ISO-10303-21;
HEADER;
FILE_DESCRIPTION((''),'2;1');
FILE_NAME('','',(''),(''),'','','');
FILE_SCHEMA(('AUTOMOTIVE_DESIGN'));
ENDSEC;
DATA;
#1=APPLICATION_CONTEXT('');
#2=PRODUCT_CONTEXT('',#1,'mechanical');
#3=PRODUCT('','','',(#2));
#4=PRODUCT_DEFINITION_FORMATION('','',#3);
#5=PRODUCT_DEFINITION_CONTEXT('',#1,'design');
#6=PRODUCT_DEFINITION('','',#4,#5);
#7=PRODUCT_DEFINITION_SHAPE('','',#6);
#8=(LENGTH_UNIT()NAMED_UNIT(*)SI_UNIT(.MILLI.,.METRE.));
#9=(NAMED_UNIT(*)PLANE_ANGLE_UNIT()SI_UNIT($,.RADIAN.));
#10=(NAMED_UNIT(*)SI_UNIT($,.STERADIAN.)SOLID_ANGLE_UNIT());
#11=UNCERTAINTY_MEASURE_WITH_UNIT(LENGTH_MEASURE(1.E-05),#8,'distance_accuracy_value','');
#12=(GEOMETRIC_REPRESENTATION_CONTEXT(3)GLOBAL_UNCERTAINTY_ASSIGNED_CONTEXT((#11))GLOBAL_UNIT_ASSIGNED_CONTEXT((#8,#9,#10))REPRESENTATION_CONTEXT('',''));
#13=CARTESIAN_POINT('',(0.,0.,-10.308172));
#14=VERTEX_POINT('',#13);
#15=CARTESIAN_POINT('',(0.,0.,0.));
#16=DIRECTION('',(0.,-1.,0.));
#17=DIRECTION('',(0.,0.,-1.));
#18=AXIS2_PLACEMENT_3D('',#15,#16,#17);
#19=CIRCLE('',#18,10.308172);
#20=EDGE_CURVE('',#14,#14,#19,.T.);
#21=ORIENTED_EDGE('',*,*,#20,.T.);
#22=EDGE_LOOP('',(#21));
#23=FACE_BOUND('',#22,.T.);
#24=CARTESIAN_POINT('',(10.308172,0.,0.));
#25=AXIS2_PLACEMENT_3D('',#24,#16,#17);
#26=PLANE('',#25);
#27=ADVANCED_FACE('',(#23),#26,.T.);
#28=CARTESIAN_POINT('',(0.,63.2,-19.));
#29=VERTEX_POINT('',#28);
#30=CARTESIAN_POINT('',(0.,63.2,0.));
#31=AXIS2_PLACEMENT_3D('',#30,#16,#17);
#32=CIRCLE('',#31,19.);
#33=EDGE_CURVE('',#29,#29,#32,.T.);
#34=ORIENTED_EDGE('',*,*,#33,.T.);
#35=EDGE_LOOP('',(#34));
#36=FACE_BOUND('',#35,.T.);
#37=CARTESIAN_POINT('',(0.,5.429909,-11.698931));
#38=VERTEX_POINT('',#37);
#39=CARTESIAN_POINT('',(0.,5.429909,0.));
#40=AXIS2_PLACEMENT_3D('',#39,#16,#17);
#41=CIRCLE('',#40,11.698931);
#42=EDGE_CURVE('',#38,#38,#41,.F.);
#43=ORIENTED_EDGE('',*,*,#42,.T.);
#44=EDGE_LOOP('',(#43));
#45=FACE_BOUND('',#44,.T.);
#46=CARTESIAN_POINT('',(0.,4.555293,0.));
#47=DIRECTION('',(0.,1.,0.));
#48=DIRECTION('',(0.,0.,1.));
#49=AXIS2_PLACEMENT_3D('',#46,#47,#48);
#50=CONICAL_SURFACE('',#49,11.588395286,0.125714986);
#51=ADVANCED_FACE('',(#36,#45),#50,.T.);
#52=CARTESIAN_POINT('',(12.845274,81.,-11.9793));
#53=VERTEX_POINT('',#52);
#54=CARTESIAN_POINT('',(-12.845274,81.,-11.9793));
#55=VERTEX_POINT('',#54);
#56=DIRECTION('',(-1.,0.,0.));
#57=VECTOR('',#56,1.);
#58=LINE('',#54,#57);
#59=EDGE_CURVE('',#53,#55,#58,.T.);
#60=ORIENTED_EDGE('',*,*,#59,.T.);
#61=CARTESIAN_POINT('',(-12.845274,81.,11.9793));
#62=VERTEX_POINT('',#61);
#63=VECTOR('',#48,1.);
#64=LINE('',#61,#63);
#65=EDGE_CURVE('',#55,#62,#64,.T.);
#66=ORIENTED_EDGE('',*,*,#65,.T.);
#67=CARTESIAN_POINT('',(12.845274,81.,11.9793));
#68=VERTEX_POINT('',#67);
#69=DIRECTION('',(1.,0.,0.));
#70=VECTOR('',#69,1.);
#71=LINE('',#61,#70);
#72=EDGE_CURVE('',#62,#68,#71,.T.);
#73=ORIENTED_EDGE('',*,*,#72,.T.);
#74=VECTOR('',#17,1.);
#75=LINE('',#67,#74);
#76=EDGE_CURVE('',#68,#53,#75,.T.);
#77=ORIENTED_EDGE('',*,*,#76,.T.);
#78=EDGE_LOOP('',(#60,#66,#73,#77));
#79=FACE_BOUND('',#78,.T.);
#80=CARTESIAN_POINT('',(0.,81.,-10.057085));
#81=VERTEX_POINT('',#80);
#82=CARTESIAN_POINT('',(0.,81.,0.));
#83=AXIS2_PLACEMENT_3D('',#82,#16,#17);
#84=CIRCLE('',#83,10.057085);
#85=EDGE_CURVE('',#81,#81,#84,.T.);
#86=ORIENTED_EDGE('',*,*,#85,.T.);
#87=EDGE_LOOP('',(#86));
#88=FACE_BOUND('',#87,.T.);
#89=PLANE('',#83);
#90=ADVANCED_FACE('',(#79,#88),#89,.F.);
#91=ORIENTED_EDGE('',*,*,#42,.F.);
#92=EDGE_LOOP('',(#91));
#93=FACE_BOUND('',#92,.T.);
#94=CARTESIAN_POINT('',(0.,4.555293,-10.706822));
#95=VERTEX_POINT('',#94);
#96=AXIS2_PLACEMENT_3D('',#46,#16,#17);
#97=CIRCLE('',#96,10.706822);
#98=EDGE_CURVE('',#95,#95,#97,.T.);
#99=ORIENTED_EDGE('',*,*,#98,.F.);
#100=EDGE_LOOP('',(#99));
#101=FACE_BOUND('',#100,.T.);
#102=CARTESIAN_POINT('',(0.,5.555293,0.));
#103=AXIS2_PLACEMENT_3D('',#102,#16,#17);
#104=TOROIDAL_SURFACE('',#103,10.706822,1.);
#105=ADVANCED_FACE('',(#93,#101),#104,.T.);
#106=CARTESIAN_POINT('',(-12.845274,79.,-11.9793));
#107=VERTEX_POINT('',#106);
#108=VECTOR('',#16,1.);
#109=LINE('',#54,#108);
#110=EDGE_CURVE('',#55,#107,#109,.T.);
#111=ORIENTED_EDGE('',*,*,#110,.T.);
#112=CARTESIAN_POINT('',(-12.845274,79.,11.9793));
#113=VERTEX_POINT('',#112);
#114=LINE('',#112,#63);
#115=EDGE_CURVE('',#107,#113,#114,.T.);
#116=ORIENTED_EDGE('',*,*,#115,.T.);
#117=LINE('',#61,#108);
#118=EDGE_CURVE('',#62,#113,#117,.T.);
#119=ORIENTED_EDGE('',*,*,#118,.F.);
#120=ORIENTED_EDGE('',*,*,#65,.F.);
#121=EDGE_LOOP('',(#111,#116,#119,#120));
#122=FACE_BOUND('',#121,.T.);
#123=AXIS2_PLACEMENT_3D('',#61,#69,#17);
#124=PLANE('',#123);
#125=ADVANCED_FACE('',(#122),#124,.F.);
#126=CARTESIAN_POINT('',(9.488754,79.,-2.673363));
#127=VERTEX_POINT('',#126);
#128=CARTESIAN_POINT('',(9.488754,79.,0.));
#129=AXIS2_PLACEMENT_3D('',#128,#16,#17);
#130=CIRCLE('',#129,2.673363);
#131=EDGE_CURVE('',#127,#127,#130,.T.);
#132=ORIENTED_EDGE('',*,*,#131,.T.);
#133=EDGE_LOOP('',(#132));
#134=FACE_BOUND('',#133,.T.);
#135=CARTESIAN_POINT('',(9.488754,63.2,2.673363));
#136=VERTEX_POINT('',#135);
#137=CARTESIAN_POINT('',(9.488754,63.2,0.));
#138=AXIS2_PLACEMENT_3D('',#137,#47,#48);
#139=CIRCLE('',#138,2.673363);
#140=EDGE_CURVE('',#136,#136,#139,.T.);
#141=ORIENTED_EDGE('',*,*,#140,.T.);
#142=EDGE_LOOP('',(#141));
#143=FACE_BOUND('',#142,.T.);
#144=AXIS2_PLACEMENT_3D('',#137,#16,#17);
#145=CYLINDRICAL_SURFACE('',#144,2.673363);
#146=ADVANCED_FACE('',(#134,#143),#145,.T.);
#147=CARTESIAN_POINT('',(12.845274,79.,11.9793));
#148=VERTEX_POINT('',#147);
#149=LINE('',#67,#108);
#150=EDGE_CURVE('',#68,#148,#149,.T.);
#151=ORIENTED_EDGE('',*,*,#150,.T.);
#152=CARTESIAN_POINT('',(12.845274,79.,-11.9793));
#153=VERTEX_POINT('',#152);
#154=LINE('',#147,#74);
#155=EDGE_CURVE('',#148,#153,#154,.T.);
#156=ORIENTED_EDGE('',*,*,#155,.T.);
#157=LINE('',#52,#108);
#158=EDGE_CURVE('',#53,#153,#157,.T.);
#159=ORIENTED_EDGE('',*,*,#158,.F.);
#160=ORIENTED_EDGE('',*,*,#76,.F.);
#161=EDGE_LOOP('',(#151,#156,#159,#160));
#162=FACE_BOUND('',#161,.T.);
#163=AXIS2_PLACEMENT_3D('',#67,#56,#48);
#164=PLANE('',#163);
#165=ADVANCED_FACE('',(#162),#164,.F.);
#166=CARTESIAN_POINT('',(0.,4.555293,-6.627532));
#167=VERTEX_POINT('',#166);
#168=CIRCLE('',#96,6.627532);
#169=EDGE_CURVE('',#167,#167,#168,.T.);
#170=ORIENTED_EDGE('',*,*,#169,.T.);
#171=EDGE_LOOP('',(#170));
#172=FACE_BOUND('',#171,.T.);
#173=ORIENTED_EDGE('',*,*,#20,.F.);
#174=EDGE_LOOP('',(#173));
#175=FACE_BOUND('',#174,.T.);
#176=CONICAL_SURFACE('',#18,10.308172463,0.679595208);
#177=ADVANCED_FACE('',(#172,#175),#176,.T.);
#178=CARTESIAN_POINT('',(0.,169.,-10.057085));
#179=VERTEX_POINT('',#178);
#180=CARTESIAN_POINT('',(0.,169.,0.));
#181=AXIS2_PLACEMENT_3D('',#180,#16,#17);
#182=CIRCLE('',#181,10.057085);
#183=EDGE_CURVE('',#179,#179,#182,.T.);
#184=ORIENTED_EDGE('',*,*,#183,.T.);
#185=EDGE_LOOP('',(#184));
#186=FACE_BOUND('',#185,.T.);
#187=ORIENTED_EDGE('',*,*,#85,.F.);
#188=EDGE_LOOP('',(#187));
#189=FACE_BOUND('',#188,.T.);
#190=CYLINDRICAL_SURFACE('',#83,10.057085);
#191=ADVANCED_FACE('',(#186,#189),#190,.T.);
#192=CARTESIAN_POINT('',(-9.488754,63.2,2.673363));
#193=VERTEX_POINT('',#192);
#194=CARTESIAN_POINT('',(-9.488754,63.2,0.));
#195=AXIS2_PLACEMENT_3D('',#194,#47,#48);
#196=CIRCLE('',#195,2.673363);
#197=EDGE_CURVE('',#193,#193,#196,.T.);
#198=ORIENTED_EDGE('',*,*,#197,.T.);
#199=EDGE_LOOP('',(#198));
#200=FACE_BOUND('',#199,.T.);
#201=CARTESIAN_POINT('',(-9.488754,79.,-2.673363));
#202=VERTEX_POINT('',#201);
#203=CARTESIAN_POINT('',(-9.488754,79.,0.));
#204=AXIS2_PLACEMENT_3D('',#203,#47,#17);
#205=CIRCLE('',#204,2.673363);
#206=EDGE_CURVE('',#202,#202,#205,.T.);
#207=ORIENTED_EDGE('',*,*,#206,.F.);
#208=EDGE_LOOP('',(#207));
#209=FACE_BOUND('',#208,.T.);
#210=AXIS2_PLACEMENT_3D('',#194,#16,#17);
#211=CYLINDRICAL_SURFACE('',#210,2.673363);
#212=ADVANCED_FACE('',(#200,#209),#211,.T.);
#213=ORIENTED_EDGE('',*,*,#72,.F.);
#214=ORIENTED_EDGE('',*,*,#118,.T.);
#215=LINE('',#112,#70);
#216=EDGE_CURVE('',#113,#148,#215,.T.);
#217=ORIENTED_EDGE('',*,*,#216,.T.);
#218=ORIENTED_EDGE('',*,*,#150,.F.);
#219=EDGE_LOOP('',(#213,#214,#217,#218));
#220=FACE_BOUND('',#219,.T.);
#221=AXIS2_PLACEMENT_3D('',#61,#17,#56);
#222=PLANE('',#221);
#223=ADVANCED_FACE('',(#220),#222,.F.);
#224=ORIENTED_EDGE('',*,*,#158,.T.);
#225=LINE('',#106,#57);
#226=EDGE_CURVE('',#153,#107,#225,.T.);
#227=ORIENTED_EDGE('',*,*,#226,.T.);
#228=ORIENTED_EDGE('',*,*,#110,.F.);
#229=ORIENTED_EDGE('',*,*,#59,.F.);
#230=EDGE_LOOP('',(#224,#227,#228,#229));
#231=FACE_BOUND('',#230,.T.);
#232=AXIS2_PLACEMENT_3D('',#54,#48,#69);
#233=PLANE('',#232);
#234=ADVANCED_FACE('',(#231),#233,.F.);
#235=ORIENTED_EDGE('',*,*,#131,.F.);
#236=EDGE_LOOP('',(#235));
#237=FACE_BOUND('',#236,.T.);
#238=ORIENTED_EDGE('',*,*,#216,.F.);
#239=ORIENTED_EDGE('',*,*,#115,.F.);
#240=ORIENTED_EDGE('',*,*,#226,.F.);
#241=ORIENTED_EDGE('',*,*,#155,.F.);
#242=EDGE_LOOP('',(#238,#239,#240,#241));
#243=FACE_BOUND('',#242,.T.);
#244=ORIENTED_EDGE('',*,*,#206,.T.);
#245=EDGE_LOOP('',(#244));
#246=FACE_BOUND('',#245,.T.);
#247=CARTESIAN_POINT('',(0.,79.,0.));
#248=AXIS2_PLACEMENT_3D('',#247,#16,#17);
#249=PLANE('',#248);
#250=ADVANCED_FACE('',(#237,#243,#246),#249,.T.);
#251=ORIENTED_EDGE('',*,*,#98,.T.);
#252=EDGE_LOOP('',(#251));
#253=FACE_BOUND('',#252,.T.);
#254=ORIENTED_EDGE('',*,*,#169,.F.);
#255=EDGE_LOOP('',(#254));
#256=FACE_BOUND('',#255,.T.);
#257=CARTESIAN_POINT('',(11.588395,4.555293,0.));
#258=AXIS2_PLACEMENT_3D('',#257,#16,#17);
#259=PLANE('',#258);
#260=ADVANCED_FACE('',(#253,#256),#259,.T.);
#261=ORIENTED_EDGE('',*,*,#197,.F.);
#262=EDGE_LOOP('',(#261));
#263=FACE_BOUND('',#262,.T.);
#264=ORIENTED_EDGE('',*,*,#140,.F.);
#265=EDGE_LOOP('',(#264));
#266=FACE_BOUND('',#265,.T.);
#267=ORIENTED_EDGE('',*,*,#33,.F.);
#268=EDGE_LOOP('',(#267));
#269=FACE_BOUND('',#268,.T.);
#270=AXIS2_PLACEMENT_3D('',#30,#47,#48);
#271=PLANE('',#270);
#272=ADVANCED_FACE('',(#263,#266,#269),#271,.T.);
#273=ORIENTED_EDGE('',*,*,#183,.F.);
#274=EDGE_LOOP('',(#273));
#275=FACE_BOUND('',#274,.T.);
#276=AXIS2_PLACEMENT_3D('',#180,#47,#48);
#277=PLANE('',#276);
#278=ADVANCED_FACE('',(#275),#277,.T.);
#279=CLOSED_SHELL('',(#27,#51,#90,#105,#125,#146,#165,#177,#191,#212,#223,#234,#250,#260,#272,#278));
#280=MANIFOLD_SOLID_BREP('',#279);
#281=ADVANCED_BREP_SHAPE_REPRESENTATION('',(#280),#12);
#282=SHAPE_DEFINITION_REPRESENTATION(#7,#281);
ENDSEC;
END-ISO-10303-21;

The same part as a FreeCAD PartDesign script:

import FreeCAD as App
import Part
import Sketcher
from FreeCAD import Vector
Q = App.Units.Quantity


def edges_at(feature, points):
    """Names of the edges that pass closest to the given points."""
    edges = feature.Shape.Edges
    near = lambda p: min(range(len(edges)), key=lambda i: edges[i].distToShape(Part.Vertex(*p))[0])
    return sorted({f"Edge{near(p) + 1}" for p in points})

doc = App.newDocument("Part")
body = doc.addObject("PartDesign::Body", "Body")

# Sketch on XY plane
sketch1 = body.newObject("Sketcher::SketchObject", "Sketch")
sketch1.AttachmentSupport = (doc.getObject("XY_Plane"), [""])
sketch1.MapMode = "FlatFace"
sketch1.addGeometry(Part.LineSegment(Vector(0, 63.2, 0), Vector(0, 0, 0)), False)
sketch1.addGeometry(Part.LineSegment(Vector(0, 0, 0), Vector(10.308172, 0, 0)), False)
sketch1.addGeometry(Part.LineSegment(Vector(10.308172, 0, 0), Vector(6.627532, 4.555293, 0)), False)
sketch1.addGeometry(Part.LineSegment(Vector(6.627532, 4.555293, 0), Vector(11.588395, 4.555293, 0)), False)
sketch1.addGeometry(Part.LineSegment(Vector(11.588395, 4.555293, 0), Vector(19, 63.2, 0)), False)
sketch1.addGeometry(Part.LineSegment(Vector(19, 63.2, 0), Vector(0, 63.2, 0)), False)
sketch1.addConstraint(Sketcher.Constraint("Coincident", 0, 2, 1, 1))
sketch1.addConstraint(Sketcher.Constraint("Coincident", 1, 2, 2, 1))
sketch1.addConstraint(Sketcher.Constraint("Coincident", 2, 2, 3, 1))
sketch1.addConstraint(Sketcher.Constraint("Coincident", 3, 2, 4, 1))
sketch1.addConstraint(Sketcher.Constraint("Coincident", 4, 2, 5, 1))
sketch1.addConstraint(Sketcher.Constraint("Coincident", 5, 2, 0, 1))
sketch1.addConstraint(Sketcher.Constraint("Vertical", 0))
sketch1.addConstraint(Sketcher.Constraint("Horizontal", 1))
sketch1.addConstraint(Sketcher.Constraint("Horizontal", 3))
sketch1.addConstraint(Sketcher.Constraint("Horizontal", 5))
sketch1.addConstraint(Sketcher.Constraint("Coincident", 0, 2, -1, 1))
sketch1.addConstraint(Sketcher.Constraint("DistanceX", 5, 2, 5, 1, Q("19 mm")))
sketch1.addConstraint(Sketcher.Constraint("DistanceY", 0, 2, 0, 1, Q("63.2 mm")))
sketch1.addConstraint(Sketcher.Constraint("DistanceX", 1, 1, 1, 2, Q("10.308172 mm")))
sketch1.addConstraint(Sketcher.Constraint("DistanceX", 3, 1, 3, 2, Q("4.960863 mm")))
sketch1.addConstraint(Sketcher.Constraint("DistanceX", -1, 1, 2, 2, Q("6.627532 mm")))
sketch1.addConstraint(Sketcher.Constraint("Distance", 2, Q("5.856433 mm")))
revolution = body.newObject("PartDesign::Revolution", "Revolution")
revolution.Profile = sketch1
revolution.ReferenceAxis = (sketch1, ["V_Axis"])
revolution.Angle = 360
doc.recompute()

fillet = body.newObject("PartDesign::Fillet", "Fillet")
fillet.Base = (revolution, edges_at(revolution, [(-11.588, 4.555, 0)]))
fillet.Radius = 1

# Sketch on XY plane
sketch2 = body.newObject("Sketcher::SketchObject", "Sketch001")
sketch2.AttachmentSupport = (doc.getObject("XY_Plane"), [""])
sketch2.MapMode = "FlatFace"
sketch2.addGeometry(Part.LineSegment(Vector(9.488754, 79, 0), Vector(9.488754, 63.2, 0)), False)
sketch2.addGeometry(Part.LineSegment(Vector(9.488754, 63.2, 0), Vector(12.162117, 63.2, 0)), False)
sketch2.addGeometry(Part.LineSegment(Vector(12.162117, 63.2, 0), Vector(12.162117, 79, 0)), False)
sketch2.addGeometry(Part.LineSegment(Vector(12.162117, 79, 0), Vector(9.488754, 79, 0)), False)
sketch2.addGeometry(Part.LineSegment(Vector(9.488754, 63.2, 0), Vector(9.488754, 79, 0)), True)  # axis
sketch2.addConstraint(Sketcher.Constraint("Coincident", 0, 2, 1, 1))
sketch2.addConstraint(Sketcher.Constraint("Coincident", 1, 2, 2, 1))
sketch2.addConstraint(Sketcher.Constraint("Coincident", 2, 2, 3, 1))
sketch2.addConstraint(Sketcher.Constraint("Coincident", 3, 2, 0, 1))
sketch2.addConstraint(Sketcher.Constraint("Vertical", 0))
sketch2.addConstraint(Sketcher.Constraint("Horizontal", 1))
sketch2.addConstraint(Sketcher.Constraint("Vertical", 2))
sketch2.addConstraint(Sketcher.Constraint("Horizontal", 3))
sketch2.addConstraint(Sketcher.Constraint("Vertical", 4))
sketch2.addConstraint(Sketcher.Constraint("Coincident", 4, 1, 0, 2))
sketch2.addConstraint(Sketcher.Constraint("Horizontal", 2, 2, 4, 2))
sketch2.addConstraint(Sketcher.Constraint("DistanceY", 0, 2, 0, 1, Q("15.8 mm")))
sketch2.addConstraint(Sketcher.Constraint("DistanceY", -1, 1, 2, 2, Q("79 mm")))
sketch2.addConstraint(Sketcher.Constraint("DistanceX", 1, 1, 1, 2, Q("2.673363 mm")))
sketch2.addConstraint(Sketcher.Constraint("DistanceX", -1, 1, 0, 2, Q("9.488754 mm")))
revolution2 = body.newObject("PartDesign::Revolution", "Revolution001")
revolution2.Profile = sketch2
revolution2.ReferenceAxis = (sketch2, ["Axis0"])
revolution2.Angle = 360
doc.recompute()

mirrored = body.newObject("PartDesign::Mirrored", "Mirrored")
mirrored.Originals = [revolution2]
mirrored.MirrorPlane = (doc.getObject("YZ_Plane"), [""])
body.Tip = mirrored

# Sketch on XZ plane
sketch3 = body.newObject("Sketcher::SketchObject", "Sketch002")
sketch3.AttachmentSupport = (doc.getObject("XZ_Plane"), [""])
sketch3.MapMode = "FlatFace"
sketch3.AttachmentOffset = App.Placement(Vector(0, 0, -79), App.Rotation())
sketch3.addGeometry(Part.LineSegment(Vector(-12.845274, -11.9793, 0), Vector(-12.845274, 11.9793, 0)), False)
sketch3.addGeometry(Part.LineSegment(Vector(-12.845274, 11.9793, 0), Vector(12.845274, 11.9793, 0)), False)
sketch3.addGeometry(Part.LineSegment(Vector(12.845274, 11.9793, 0), Vector(12.845274, -11.9793, 0)), False)
sketch3.addGeometry(Part.LineSegment(Vector(12.845274, -11.9793, 0), Vector(-12.845274, -11.9793, 0)), False)
sketch3.addConstraint(Sketcher.Constraint("Coincident", 0, 2, 1, 1))
sketch3.addConstraint(Sketcher.Constraint("Coincident", 1, 2, 2, 1))
sketch3.addConstraint(Sketcher.Constraint("Coincident", 2, 2, 3, 1))
sketch3.addConstraint(Sketcher.Constraint("Coincident", 3, 2, 0, 1))
sketch3.addConstraint(Sketcher.Constraint("Vertical", 0))
sketch3.addConstraint(Sketcher.Constraint("Horizontal", 1))
sketch3.addConstraint(Sketcher.Constraint("Vertical", 2))
sketch3.addConstraint(Sketcher.Constraint("Horizontal", 3))
sketch3.addConstraint(Sketcher.Constraint("Symmetric", 0, 2, 2, 2, -1, 1))
sketch3.addConstraint(Sketcher.Constraint("DistanceY", 0, 1, 0, 2, Q("23.9586 mm")))
sketch3.addConstraint(Sketcher.Constraint("DistanceX", 1, 1, 1, 2, Q("25.690547 mm")))
pad1 = body.newObject("PartDesign::Pad", "Pad")
pad1.Profile = sketch3
pad1.Length = 2
pad1.Reversed = True

# Sketch on XY plane
sketch4 = body.newObject("Sketcher::SketchObject", "Sketch003")
sketch4.AttachmentSupport = (doc.getObject("XY_Plane"), [""])
sketch4.MapMode = "FlatFace"
sketch4.addGeometry(Part.LineSegment(Vector(0, 169, 0), Vector(0, 81, 0)), False)
sketch4.addGeometry(Part.LineSegment(Vector(0, 81, 0), Vector(10.057085, 81, 0)), False)
sketch4.addGeometry(Part.LineSegment(Vector(10.057085, 81, 0), Vector(10.057085, 169, 0)), False)
sketch4.addGeometry(Part.LineSegment(Vector(10.057085, 169, 0), Vector(0, 169, 0)), False)
sketch4.addConstraint(Sketcher.Constraint("Coincident", 0, 2, 1, 1))
sketch4.addConstraint(Sketcher.Constraint("Coincident", 1, 2, 2, 1))
sketch4.addConstraint(Sketcher.Constraint("Coincident", 2, 2, 3, 1))
sketch4.addConstraint(Sketcher.Constraint("Coincident", 3, 2, 0, 1))
sketch4.addConstraint(Sketcher.Constraint("Vertical", 0))
sketch4.addConstraint(Sketcher.Constraint("Horizontal", 1))
sketch4.addConstraint(Sketcher.Constraint("Vertical", 2))
sketch4.addConstraint(Sketcher.Constraint("Horizontal", 3))
sketch4.addConstraint(Sketcher.Constraint("PointOnObject", 0, 2, -2))
sketch4.addConstraint(Sketcher.Constraint("DistanceY", 0, 2, 0, 1, Q("88 mm")))
sketch4.addConstraint(Sketcher.Constraint("DistanceY", -1, 1, 0, 2, Q("81 mm")))
sketch4.addConstraint(Sketcher.Constraint("DistanceX", 1, 1, 1, 2, Q("10.057085 mm")))
revolution3 = body.newObject("PartDesign::Revolution", "Revolution002")
revolution3.Profile = sketch4
revolution3.ReferenceAxis = (sketch4, ["V_Axis"])
revolution3.Angle = 360

doc.recompute()
